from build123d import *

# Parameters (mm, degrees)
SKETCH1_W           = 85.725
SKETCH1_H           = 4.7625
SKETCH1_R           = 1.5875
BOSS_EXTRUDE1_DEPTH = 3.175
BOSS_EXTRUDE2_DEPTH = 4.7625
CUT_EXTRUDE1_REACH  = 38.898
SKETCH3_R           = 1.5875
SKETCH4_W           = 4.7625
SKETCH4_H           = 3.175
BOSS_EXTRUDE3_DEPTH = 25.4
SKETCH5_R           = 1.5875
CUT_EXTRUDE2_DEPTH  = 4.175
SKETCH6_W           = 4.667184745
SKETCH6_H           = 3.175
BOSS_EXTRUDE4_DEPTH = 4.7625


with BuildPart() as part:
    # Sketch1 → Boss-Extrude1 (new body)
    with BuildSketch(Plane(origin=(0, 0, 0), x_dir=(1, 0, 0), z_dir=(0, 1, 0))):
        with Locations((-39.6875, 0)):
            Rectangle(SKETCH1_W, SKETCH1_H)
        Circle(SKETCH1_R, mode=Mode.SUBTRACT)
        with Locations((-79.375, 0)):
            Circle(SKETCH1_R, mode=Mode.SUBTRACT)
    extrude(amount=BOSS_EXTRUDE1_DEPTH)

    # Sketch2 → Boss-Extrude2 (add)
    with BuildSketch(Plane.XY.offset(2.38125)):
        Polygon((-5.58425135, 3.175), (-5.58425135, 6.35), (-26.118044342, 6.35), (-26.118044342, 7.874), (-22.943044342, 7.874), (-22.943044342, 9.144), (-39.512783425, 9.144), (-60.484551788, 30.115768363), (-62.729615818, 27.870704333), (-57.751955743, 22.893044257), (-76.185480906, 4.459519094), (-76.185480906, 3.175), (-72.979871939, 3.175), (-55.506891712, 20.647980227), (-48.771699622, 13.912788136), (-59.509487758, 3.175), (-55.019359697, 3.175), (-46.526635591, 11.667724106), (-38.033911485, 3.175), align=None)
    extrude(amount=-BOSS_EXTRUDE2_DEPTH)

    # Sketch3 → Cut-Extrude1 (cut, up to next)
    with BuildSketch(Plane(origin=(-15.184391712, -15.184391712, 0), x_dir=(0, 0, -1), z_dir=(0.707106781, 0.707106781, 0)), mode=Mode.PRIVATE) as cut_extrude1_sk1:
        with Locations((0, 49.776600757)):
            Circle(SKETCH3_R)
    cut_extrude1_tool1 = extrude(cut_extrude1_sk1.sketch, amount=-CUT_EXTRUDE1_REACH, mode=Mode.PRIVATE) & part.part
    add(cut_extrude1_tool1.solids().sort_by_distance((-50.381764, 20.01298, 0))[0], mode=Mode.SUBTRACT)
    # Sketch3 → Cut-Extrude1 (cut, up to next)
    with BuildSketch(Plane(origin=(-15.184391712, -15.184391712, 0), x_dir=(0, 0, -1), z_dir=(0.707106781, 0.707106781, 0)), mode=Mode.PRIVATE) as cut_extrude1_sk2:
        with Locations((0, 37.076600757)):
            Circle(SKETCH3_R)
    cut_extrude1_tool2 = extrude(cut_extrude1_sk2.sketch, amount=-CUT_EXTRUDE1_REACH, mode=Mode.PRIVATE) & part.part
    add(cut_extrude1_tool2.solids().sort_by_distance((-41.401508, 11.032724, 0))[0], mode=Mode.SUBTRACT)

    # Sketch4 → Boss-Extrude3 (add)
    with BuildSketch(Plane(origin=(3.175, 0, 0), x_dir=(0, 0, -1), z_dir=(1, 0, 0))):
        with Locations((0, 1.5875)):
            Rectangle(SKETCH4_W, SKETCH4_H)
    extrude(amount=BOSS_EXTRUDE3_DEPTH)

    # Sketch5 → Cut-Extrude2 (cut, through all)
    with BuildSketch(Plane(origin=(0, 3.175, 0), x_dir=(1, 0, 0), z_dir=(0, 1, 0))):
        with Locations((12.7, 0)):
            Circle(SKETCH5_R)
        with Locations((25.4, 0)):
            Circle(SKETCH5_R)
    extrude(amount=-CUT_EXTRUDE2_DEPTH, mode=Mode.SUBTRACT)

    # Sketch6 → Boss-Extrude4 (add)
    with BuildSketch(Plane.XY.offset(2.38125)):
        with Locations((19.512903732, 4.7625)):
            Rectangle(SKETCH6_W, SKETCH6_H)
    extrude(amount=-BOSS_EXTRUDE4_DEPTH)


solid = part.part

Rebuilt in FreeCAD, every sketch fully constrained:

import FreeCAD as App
import Part
import Sketcher
from FreeCAD import Vector
Q = App.Units.Quantity


def add_polygon(sketch, points):
    """Adds a closed chain of lines whose ends are joined by coincident constraints."""
    first, n = sketch.GeometryCount, len(points)
    for a, b in zip(points, points[1:] + points[:1]):
        sketch.addGeometry(Part.LineSegment(App.Vector(*a, 0), App.Vector(*b, 0)), False)
    for i in range(n):
        sketch.addConstraint(Sketcher.Constraint("Coincident", first + i, 2, first + (i + 1) % n, 1))

doc = App.newDocument("Part")
body = doc.addObject("PartDesign::Body", "Body")

sketch1 = doc.addObject("Sketcher::SketchObject", "Sketch")
body.addObject(sketch1)
sketch1.AttachmentSupport = (doc.XZ_Plane, [""])
sketch1.MapMode = "FlatFace"
add_polygon(sketch1, [(-82.5, -2.4), (-82.5, 2.4), (3.2, 2.4), (3.2, -2.4)])
sketch1.addGeometry(Part.Circle(Vector(-79.4, 0, 0), Vector(0, 0, 1), 1.6), False)
sketch1.addGeometry(Part.Circle(Vector(0, 0, 0), Vector(0, 0, 1), 1.6), False)
sketch1.addConstraint(Sketcher.Constraint("Vertical", 0))
sketch1.addConstraint(Sketcher.Constraint("Horizontal", 1))
sketch1.addConstraint(Sketcher.Constraint("Vertical", 2))
sketch1.addConstraint(Sketcher.Constraint("Horizontal", 3))
sketch1.addConstraint(Sketcher.Constraint("Coincident", 5, 3, -1, 1))
sketch1.addConstraint(Sketcher.Constraint("Equal", 4, 5))
sketch1.addConstraint(Sketcher.Constraint("PointOnObject", 4, 3, -1))
sketch1.addConstraint(Sketcher.Constraint("Diameter", 4, Q("0.125 in")))
sketch1.addConstraint(Sketcher.Constraint("DistanceX", 1, 1, 1, 2, Q("3.375 in")))
sketch1.addConstraint(Sketcher.Constraint("DistanceY", 0, 1, 0, 2, Q("0.1875 in")))
sketch1.addConstraint(Sketcher.Constraint("DistanceX", 0, 2, -1, 1, Q("3.25 in")))
sketch1.addConstraint(Sketcher.Constraint("DistanceX", 4, 3, 1, 2, Q("3.25 in")))
sketch1.addConstraint(Sketcher.Constraint("DistanceY", -1, 1, 0, 2, Q("0.09375 in")))
pad1 = doc.addObject("PartDesign::Pad", "Pad")
body.addObject(pad1)
pad1.Profile = sketch1
pad1.Length = Q("0.125 in")
pad1.Reversed = True

sketch2 = doc.addObject("Sketcher::SketchObject", "Sketch001")
body.addObject(sketch2)
sketch2.AttachmentSupport = (doc.XY_Plane, [""])
sketch2.MapMode = "FlatFace"
sketch2.AttachmentOffset = App.Placement(Vector(0, 0, 0.09375 * 25.4), App.Rotation())
add_polygon(sketch2, [(-5.6, 3.2), (-5.6, 6.3), (-26.1, 6.3), (-26.1, 7.9), (-22.9, 7.9), (-22.9, 9.1), (-39.5, 9.1), (-60.5, 30.1), (-62.7, 27.9), (-57.8, 22.9), (-76.2, 4.5), (-76.2, 3.2), (-73, 3.2), (-55.5, 20.6), (-48.8, 13.9), (-59.5, 3.2), (-55, 3.2), (-46.5, 11.7), (-38, 3.2)])
sketch2.addConstraint(Sketcher.Constraint("Vertical", 0))
sketch2.addConstraint(Sketcher.Constraint("Horizontal", 1))
sketch2.addConstraint(Sketcher.Constraint("Vertical", 2))
sketch2.addConstraint(Sketcher.Constraint("Horizontal", 3))
sketch2.addConstraint(Sketcher.Constraint("Vertical", 4))
sketch2.addConstraint(Sketcher.Constraint("Horizontal", 5))
sketch2.addConstraint(Sketcher.Constraint("Vertical", 10))
sketch2.addConstraint(Sketcher.Constraint("Horizontal", 11))
sketch2.addConstraint(Sketcher.Constraint("Horizontal", 15))
sketch2.addConstraint(Sketcher.Constraint("Horizontal", 18))
sketch2.addConstraint(Sketcher.Constraint("Perpendicular", 6, 7))
sketch2.addConstraint(Sketcher.Constraint("Perpendicular", 7, 8))
sketch2.addConstraint(Sketcher.Constraint("Perpendicular", 8, 9))
sketch2.addConstraint(Sketcher.Constraint("Parallel", 9, 12))
sketch2.addConstraint(Sketcher.Constraint("Perpendicular", 12, 13))
sketch2.addConstraint(Sketcher.Constraint("Perpendicular", 13, 14))
sketch2.addConstraint(Sketcher.Constraint("Parallel", 14, 16))
sketch2.addConstraint(Sketcher.Constraint("Perpendicular", 16, 17))
sketch2.addConstraint(Sketcher.Constraint("Horizontal", 11, 2, 14, 2))
sketch2.addConstraint(Sketcher.Constraint("Horizontal", 15, 2, 17, 2))
sketch2.addConstraint(Sketcher.Constraint("Equal", 3, 0))
sketch2.addConstraint(Sketcher.Constraint("Equal", 16, 17))
sketch2.addConstraint(Sketcher.Constraint("DistanceY", 2, 1, 2, 2, Q("0.06 in")))
sketch2.addConstraint(Sketcher.Constraint("DistanceY", 4, 1, 4, 2, Q("0.05 in")))
sketch2.addConstraint(Sketcher.Constraint("DistanceX", 3, 1, 3, 2, Q("0.125 in")))
sketch2.addConstraint(Sketcher.Constraint("DistanceY", -1, 1, 0, 2, Q("0.25 in")))
sketch2.addConstraint(Sketcher.Constraint("Distance", 7, Q("0.125 in")))
sketch2.addConstraint(Sketcher.Constraint("Distance", 13, Q("0.375 in")))
sketch2.addConstraint(Sketcher.Constraint("DistanceX", 5, 2, 5, 1, 16.569739))
sketch2.addConstraint(Sketcher.Constraint("DistanceX", 11, 1, 11, 2, 3.205609))
sketch2.addConstraint(Sketcher.Constraint("DistanceX", 15, 1, 15, 2, 4.490128))
sketch2.addConstraint(Sketcher.Constraint("DistanceX", 18, 1, 18, 2, 32.44966))
sketch2.addConstraint(Sketcher.Constraint("DistanceY", 10, 2, 10, 1, 1.284519))
sketch2.addConstraint(Sketcher.Constraint("DistanceX", 13, 2, -1, 1, 48.7717))
sketch2.addConstraint(Sketcher.Constraint("Distance", 6, 29.658559))
sketch2.addConstraint(Sketcher.Constraint("Distance", 9, 26.068941))
sketch2.addConstraint(Sketcher.Constraint("DistanceX", 1, 2, 1, 1, 20.533793))
sketch2.addConstraint(Sketcher.Constraint("DistanceX", 0, 2, -1, 1, 5.584251))
pad2 = doc.addObject("PartDesign::Pad", "Pad001")
body.addObject(pad2)
pad2.Profile = sketch2
pad2.Length = Q("0.1875 in")
pad2.Reversed = True

sketch3 = doc.addObject("Sketcher::SketchObject", "Sketch002")
body.addObject(sketch3)
sketch3.Placement = App.Placement(Vector(-15.184392, -15.184392, 0), App.Rotation(Vector(0, 0, -1), Vector(-0.707106781, 0.707106781, 0), Vector(0.707106781, 0.707106781, 0), "ZXY"))
sketch3.addGeometry(Part.Circle(Vector(0, 49.8, 0), Vector(0, 0, 1), 1.6), False)
sketch3.addConstraint(Sketcher.Constraint("PointOnObject", 0, 3, -2))
sketch3.addConstraint(Sketcher.Constraint("Diameter", 0, Q("0.125 in")))
sketch3.addConstraint(Sketcher.Constraint("DistanceY", -1, 1, 0, 3, 49.776601))
pocket1 = doc.addObject("PartDesign::Pocket", "Pocket")
body.addObject(pocket1)
pocket1.Profile = sketch3
pocket1.Type = "UpToFirst"

sketch4 = doc.addObject("Sketcher::SketchObject", "Sketch003")
body.addObject(sketch4)
sketch4.Placement = App.Placement(Vector(-15.184392, -15.184392, 0), App.Rotation(Vector(0, 0, -1), Vector(-0.707106781, 0.707106781, 0), Vector(0.707106781, 0.707106781, 0), "ZXY"))
sketch4.addGeometry(Part.Circle(Vector(0, 37.1, 0), Vector(0, 0, 1), 1.6), False)
sketch4.addConstraint(Sketcher.Constraint("PointOnObject", 0, 3, -2))
sketch4.addConstraint(Sketcher.Constraint("Diameter", 0, Q("0.125 in")))
sketch4.addConstraint(Sketcher.Constraint("DistanceY", -1, 1, 0, 3, 37.076601))
pocket2 = doc.addObject("PartDesign::Pocket", "Pocket001")
body.addObject(pocket2)
pocket2.Profile = sketch4
pocket2.Type = "UpToFirst"

sketch5 = doc.addObject("Sketcher::SketchObject", "Sketch004")
body.addObject(sketch5)
sketch5.AttachmentSupport = (doc.YZ_Plane, [""])
sketch5.MapMode = "FlatFace"
sketch5.AttachmentOffset = App.Placement(Vector(0, 0, 0.125 * 25.4), App.Rotation())
add_polygon(sketch5, [(3.2, 2.4), (0, 2.4), (0, -2.4), (3.2, -2.4)])
sketch5.addConstraint(Sketcher.Constraint("Horizontal", 0))
sketch5.addConstraint(Sketcher.Constraint("Vertical", 1))
sketch5.addConstraint(Sketcher.Constraint("Horizontal", 2))
sketch5.addConstraint(Sketcher.Constraint("Vertical", 3))
sketch5.addConstraint(Sketcher.Constraint("Symmetric", 0, 2, 1, 2, -1, 1))
sketch5.addConstraint(Sketcher.Constraint("DistanceX", 0, 2, 0, 1, Q("0.125 in")))
sketch5.addConstraint(Sketcher.Constraint("DistanceY", 1, 2, 1, 1, Q("0.1875 in")))
pad3 = doc.addObject("PartDesign::Pad", "Pad002")
body.addObject(pad3)
pad3.Profile = sketch5
pad3.Length = Q("1 in")

sketch6 = doc.addObject("Sketcher::SketchObject", "Sketch005")
body.addObject(sketch6)
sketch6.AttachmentSupport = (doc.XZ_Plane, [""])
sketch6.MapMode = "FlatFace"
sketch6.AttachmentOffset = App.Placement(Vector(0, 0, -0.125 * 25.4), App.Rotation())
sketch6.addGeometry(Part.Circle(Vector(12.7, 0, 0), Vector(0, 0, 1), 1.6), False)
sketch6.addGeometry(Part.Circle(Vector(25.4, 0, 0), Vector(0, 0, 1), 1.6), False)
sketch6.addConstraint(Sketcher.Constraint("Equal", 0, 1))
sketch6.addConstraint(Sketcher.Constraint("PointOnObject", 0, 3, -1))
sketch6.addConstraint(Sketcher.Constraint("PointOnObject", 1, 3, -1))
sketch6.addConstraint(Sketcher.Constraint("Diameter", 0, Q("0.125 in")))
sketch6.addConstraint(Sketcher.Constraint("DistanceX", -1, 1, 1, 3, Q("1 in")))
sketch6.addConstraint(Sketcher.Constraint("DistanceX", -1, 1, 0, 3, Q("0.5 in")))
pocket3 = doc.addObject("PartDesign::Pocket", "Pocket002")
body.addObject(pocket3)
pocket3.Profile = sketch6
pocket3.Type = "ThroughAll"
pocket3.Reversed = True

sketch7 = doc.addObject("Sketcher::SketchObject", "Sketch006")
body.addObject(sketch7)
sketch7.AttachmentSupport = (doc.XY_Plane, [""])
sketch7.MapMode = "FlatFace"
sketch7.AttachmentOffset = App.Placement(Vector(0, 0, 0.09375 * 25.4), App.Rotation())
add_polygon(sketch7, [(17.2, 6.3), (17.2, 3.2), (21.8, 3.2), (21.8, 6.3)])
sketch7.addConstraint(Sketcher.Constraint("Vertical", 0))
sketch7.addConstraint(Sketcher.Constraint("Horizontal", 1))
sketch7.addConstraint(Sketcher.Constraint("Vertical", 2))
sketch7.addConstraint(Sketcher.Constraint("Horizontal", 3))
sketch7.addConstraint(Sketcher.Constraint("DistanceY", 0, 2, 0, 1, Q("0.125 in")))
sketch7.addConstraint(Sketcher.Constraint("DistanceY", -1, 1, 2, 2, Q("0.25 in")))
sketch7.addConstraint(Sketcher.Constraint("DistanceX", 1, 1, 1, 2, 4.667185))
sketch7.addConstraint(Sketcher.Constraint("DistanceX", -1, 1, 0, 2, 17.179311))
pad4 = doc.addObject("PartDesign::Pad", "Pad003")
body.addObject(pad4)
pad4.Profile = sketch7
pad4.Length = Q("0.1875 in")
pad4.Reversed = True

doc.recompute()
